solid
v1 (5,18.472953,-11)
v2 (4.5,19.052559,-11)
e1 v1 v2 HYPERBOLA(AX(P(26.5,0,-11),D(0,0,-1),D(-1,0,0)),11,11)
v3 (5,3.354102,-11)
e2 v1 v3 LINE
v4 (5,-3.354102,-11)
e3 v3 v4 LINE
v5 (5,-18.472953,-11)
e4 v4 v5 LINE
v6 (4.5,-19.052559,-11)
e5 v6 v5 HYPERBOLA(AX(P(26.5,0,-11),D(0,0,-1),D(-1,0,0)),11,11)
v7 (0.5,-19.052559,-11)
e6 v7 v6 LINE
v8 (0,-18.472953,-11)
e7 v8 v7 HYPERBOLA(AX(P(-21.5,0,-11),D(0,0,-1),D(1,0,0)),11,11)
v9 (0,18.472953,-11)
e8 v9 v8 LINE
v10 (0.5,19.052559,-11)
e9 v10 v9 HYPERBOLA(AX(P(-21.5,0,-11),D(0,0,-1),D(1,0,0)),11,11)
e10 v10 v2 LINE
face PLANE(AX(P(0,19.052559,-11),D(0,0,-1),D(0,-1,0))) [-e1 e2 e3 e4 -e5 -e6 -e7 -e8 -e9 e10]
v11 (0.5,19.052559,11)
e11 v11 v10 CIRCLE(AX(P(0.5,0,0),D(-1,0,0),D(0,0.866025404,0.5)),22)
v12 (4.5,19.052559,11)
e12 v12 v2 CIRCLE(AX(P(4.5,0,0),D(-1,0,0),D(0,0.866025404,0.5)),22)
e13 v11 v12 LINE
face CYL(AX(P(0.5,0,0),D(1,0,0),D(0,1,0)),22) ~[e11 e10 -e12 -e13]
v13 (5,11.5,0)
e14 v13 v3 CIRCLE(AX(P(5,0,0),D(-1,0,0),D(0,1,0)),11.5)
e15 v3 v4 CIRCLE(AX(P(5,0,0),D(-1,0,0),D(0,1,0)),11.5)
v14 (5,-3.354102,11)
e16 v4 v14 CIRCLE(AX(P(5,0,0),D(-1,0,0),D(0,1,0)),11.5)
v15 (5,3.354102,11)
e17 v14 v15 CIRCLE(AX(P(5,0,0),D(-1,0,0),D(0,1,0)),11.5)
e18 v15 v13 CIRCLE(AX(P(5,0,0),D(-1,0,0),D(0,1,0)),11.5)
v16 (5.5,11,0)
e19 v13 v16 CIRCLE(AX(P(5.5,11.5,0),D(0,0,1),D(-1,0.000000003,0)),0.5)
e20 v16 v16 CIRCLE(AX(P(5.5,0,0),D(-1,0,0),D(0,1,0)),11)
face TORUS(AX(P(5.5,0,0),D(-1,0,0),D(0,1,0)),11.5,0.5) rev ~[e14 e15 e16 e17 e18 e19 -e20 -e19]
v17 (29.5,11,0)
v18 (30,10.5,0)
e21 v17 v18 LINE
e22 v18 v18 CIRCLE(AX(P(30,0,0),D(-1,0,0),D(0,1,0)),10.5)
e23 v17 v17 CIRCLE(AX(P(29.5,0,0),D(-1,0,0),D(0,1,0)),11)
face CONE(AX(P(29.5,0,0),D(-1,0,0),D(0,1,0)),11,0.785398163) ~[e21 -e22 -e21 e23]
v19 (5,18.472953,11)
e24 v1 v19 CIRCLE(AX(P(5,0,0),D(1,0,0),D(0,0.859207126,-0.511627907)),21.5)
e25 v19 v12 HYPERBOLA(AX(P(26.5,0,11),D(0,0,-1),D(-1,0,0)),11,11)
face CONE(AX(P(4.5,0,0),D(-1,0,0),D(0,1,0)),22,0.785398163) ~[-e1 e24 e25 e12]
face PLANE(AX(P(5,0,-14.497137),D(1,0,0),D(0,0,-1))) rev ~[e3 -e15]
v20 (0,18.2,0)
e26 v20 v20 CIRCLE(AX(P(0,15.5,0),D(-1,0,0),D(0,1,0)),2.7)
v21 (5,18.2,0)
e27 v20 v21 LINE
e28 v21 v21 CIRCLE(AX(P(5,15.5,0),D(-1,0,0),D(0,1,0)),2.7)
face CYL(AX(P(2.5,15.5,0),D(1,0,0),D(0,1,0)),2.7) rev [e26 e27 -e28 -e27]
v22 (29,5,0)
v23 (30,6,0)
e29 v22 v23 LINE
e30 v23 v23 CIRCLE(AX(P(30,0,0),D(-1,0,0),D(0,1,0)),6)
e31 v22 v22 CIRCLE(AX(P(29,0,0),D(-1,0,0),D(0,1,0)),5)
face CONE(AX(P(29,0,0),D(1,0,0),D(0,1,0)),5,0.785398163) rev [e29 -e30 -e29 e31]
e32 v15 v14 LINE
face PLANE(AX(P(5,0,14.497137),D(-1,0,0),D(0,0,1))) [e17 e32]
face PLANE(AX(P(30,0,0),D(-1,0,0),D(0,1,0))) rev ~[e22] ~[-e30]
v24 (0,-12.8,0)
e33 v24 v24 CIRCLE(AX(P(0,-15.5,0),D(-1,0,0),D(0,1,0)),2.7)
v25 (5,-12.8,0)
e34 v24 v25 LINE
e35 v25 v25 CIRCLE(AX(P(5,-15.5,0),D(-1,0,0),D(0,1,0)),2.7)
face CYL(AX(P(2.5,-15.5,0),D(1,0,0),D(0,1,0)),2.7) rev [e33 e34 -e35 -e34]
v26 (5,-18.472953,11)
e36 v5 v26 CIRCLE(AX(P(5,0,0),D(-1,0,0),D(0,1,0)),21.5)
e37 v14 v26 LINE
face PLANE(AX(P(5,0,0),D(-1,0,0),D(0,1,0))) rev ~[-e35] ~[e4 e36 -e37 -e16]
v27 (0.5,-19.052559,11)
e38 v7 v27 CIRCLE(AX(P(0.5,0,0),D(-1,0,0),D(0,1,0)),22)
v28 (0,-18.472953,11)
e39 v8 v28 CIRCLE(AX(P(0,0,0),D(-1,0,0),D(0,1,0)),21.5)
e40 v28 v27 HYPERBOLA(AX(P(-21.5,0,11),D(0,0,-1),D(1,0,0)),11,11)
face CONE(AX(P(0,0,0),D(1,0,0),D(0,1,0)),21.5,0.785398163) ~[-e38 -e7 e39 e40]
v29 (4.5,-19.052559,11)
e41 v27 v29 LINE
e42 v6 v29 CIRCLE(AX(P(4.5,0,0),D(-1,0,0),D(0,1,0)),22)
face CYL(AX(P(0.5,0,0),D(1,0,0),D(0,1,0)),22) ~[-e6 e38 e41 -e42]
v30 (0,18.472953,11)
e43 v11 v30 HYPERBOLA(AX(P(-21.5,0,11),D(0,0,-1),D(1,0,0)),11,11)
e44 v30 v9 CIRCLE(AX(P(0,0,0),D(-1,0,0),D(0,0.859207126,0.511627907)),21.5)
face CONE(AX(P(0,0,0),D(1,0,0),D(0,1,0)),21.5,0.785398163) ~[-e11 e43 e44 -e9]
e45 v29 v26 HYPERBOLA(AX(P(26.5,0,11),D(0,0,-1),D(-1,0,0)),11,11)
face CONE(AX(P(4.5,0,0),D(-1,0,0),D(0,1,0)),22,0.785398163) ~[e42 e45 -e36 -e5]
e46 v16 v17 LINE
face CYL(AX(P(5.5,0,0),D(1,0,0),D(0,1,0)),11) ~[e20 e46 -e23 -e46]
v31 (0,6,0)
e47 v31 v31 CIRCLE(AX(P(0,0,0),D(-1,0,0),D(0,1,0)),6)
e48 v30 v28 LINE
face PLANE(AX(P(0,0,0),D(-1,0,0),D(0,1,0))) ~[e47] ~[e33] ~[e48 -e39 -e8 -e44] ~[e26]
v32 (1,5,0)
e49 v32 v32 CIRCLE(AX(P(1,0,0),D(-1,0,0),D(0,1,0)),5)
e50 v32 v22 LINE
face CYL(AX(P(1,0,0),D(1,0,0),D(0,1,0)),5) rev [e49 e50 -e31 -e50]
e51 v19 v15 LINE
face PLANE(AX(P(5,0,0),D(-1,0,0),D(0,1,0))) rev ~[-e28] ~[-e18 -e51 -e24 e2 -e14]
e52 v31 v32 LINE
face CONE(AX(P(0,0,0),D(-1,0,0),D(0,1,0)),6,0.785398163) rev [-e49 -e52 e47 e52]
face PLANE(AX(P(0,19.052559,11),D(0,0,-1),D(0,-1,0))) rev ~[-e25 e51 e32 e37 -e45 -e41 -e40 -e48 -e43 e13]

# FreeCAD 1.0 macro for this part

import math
import FreeCAD as App
import Part
import Sketcher

V = App.Vector
Q = App.Units.Quantity


def add_polygon(sketch, points):
    """Adds a closed chain of lines whose ends are joined by coincident constraints."""
    first, n = sketch.GeometryCount, len(points)
    for a, b in zip(points, points[1:] + points[:1]):
        sketch.addGeometry(Part.LineSegment(App.Vector(*a, 0), App.Vector(*b, 0)), False)
    for i in range(n):
        sketch.addConstraint(Sketcher.Constraint("Coincident", first + i, 2, first + (i + 1) % n, 1))

doc = App.newDocument("Part")
body = doc.addObject("PartDesign::Body", "Body")

sketch1 = body.newObject("Sketcher::SketchObject", "Sketch")
sketch1.AttachmentSupport = (doc.getObject("XY_Plane"), [""])
sketch1.MapMode = "FlatFace"
sketch1.addGeometry([
    Part.LineSegment(V(0, 21.5, 0), V(0, 0, 0)),
    Part.LineSegment(V(0, 0, 0), V(30, 0, 0)),
    Part.LineSegment(V(30, 0, 0), V(30, 10.5, 0)),
    Part.LineSegment(V(30, 10.5, 0), V(29.5, 11, 0)),
    Part.LineSegment(V(29.5, 11, 0), V(5.5, 11, 0)),
    Part.ArcOfCircle(Part.Circle(V(5.5, 11.5, 0), V(0, 0, 1), 0.5), math.radians(180), math.radians(270)),
    Part.LineSegment(V(5, 11.5, 0), V(5, 21.5, 0)),
    Part.LineSegment(V(5, 21.5, 0), V(4.5, 22, 0)),
    Part.LineSegment(V(4.5, 22, 0), V(0.5, 22, 0)),
    Part.LineSegment(V(0.5, 22, 0), V(0, 21.5, 0)),
], False)
sketch1.addConstraint([
    Sketcher.Constraint("Coincident", 0, 2, 1, 1),
    Sketcher.Constraint("Coincident", 1, 2, 2, 1),
    Sketcher.Constraint("Coincident", 2, 2, 3, 1),
    Sketcher.Constraint("Coincident", 3, 2, 4, 1),
    Sketcher.Constraint("Tangent", 4, 2, 5, 2),
    Sketcher.Constraint("Tangent", 5, 1, 6, 1),
    Sketcher.Constraint("Coincident", 6, 2, 7, 1),
    Sketcher.Constraint("Coincident", 7, 2, 8, 1),
    Sketcher.Constraint("Coincident", 8, 2, 9, 1),
    Sketcher.Constraint("Coincident", 9, 2, 0, 1),
    Sketcher.Constraint("Vertical", 0),
    Sketcher.Constraint("Horizontal", 1),
    Sketcher.Constraint("Vertical", 2),
    Sketcher.Constraint("Horizontal", 4),
    Sketcher.Constraint("Vertical", 6),
    Sketcher.Constraint("Horizontal", 8),
    Sketcher.Constraint("Coincident", 0, 2, -1, 1),
    Sketcher.Constraint("Parallel", 3, 7),
    Sketcher.Constraint("Perpendicular", 7, 9),
    Sketcher.Constraint("Horizontal", 6, 2, 9, 2),
    Sketcher.Constraint("Equal", 3, 7),
    Sketcher.Constraint("Equal", 7, 9),
    Sketcher.Constraint("Radius", 5, Q("0.5 mm")),
    Sketcher.Constraint("DistanceX", 1, 1, 1, 2, Q("30 mm")),
    Sketcher.Constraint("DistanceX", 4, 2, 4, 1, Q("24 mm")),
    Sketcher.Constraint("DistanceX", 8, 2, 8, 1, Q("4 mm")),
    Sketcher.Constraint("DistanceY", 6, 1, 6, 2, Q("10 mm")),
    Sketcher.Constraint("DistanceY", 0, 2, 0, 1, Q("21.5 mm")),
])
revolution = body.newObject("PartDesign::Revolution", "Revolution")
revolution.Profile = sketch1
revolution.ReferenceAxis = (sketch1, ["H_Axis"])
revolution.Angle = 360

sketch2 = body.newObject("Sketcher::SketchObject", "Sketch001")
sketch2.AttachmentSupport = (doc.getObject("XY_Plane"), [""])
sketch2.MapMode = "FlatFace"
add_polygon(sketch2, [(0, 6), (0, 0), (30, 0), (30, 6), (29, 5), (1, 5)])
sketch2.addConstraint([
    Sketcher.Constraint("Vertical", 0),
    Sketcher.Constraint("Horizontal", 1),
    Sketcher.Constraint("Vertical", 2),
    Sketcher.Constraint("Horizontal", 4),
    Sketcher.Constraint("Coincident", 0, 2, -1, 1),
    Sketcher.Constraint("Perpendicular", 3, 5),
    Sketcher.Constraint("Horizontal", 2, 2, 5, 2),
    Sketcher.Constraint("Equal", 3, 5),
    Sketcher.Constraint("DistanceX", 1, 1, 1, 2, Q("30 mm")),
    Sketcher.Constraint("DistanceX", 4, 2, 4, 1, Q("28 mm")),
    Sketcher.Constraint("DistanceY", 0, 2, 0, 1, Q("6 mm")),
])
groove = body.newObject("PartDesign::Groove", "Groove")
groove.Profile = sketch2
groove.ReferenceAxis = (sketch2, ["H_Axis"])
groove.Angle = 360

sketch3 = body.newObject("Sketcher::SketchObject", "Sketch002")
sketch3.AttachmentSupport = (doc.getObject("XY_Plane"), [""])
sketch3.MapMode = "FlatFace"
add_polygon(sketch3, [(0, 18.2), (0, 15.5), (5, 15.5), (5, 18.2)])
sketch3.addGeometry(Part.LineSegment(V(5, 15.5, 0), V(0, 15.5, 0)), True)
sketch3.addConstraint([
    Sketcher.Constraint("Vertical", 0),
    Sketcher.Constraint("Horizontal", 1),
    Sketcher.Constraint("Vertical", 2),
    Sketcher.Constraint("Horizontal", 3),
    Sketcher.Constraint("Horizontal", 4),
    Sketcher.Constraint("Coincident", 4, 1, 1, 2),
    Sketcher.Constraint("PointOnObject", 0, 2, -2),
    Sketcher.Constraint("PointOnObject", 4, 2, -2),
    Sketcher.Constraint("DistanceX", 1, 1, 1, 2, Q("5 mm")),
    Sketcher.Constraint("DistanceY", 0, 2, 0, 1, Q("2.7 mm")),
    Sketcher.Constraint("DistanceY", -1, 1, 0, 2, Q("15.5 mm")),
])
groove2 = body.newObject("PartDesign::Groove", "Groove001")
groove2.Profile = sketch3
groove2.ReferenceAxis = (sketch3, ["Axis0"])
groove2.Angle = 360

sketch4 = body.newObject("Sketcher::SketchObject", "Sketch003")
sketch4.AttachmentSupport = (doc.getObject("XY_Plane"), [""])
sketch4.MapMode = "FlatFace"
sketch4.AttachmentOffset = App.Placement(V(0, 0, 15.5), App.Rotation())
add_polygon(sketch4, [(0, 2.7), (0, 0), (5, 0), (5, 2.7)])
sketch4.addConstraint([
    Sketcher.Constraint("Vertical", 0),
    Sketcher.Constraint("Horizontal", 1),
    Sketcher.Constraint("Vertical", 2),
    Sketcher.Constraint("Horizontal", 3),
    Sketcher.Constraint("Coincident", 0, 2, -1, 1),
    Sketcher.Constraint("DistanceX", 1, 1, 1, 2, Q("5 mm")),
    Sketcher.Constraint("DistanceY", 0, 2, 0, 1, Q("2.7 mm")),
])
groove3 = body.newObject("PartDesign::Groove", "Groove002")
groove3.Profile = sketch4
groove3.ReferenceAxis = (sketch4, ["H_Axis"])
groove3.Angle = 360

sketch5 = body.newObject("Sketcher::SketchObject", "Sketch004")
sketch5.AttachmentSupport = (doc.getObject("XY_Plane"), [""])
sketch5.MapMode = "FlatFace"
add_polygon(sketch5, [(0, -12.8), (0, -15.5), (5, -15.5), (5, -12.8)])
sketch5.addGeometry(Part.LineSegment(V(5, -15.5, 0), V(0, -15.5, 0)), True)
sketch5.addConstraint([
    Sketcher.Constraint("Vertical", 0),
    Sketcher.Constraint("Horizontal", 1),
    Sketcher.Constraint("Vertical", 2),
    Sketcher.Constraint("Horizontal", 3),
    Sketcher.Constraint("Horizontal", 4),
    Sketcher.Constraint("Coincident", 4, 1, 1, 2),
    Sketcher.Constraint("PointOnObject", 0, 2, -2),
    Sketcher.Constraint("PointOnObject", 4, 2, -2),
    Sketcher.Constraint("DistanceX", 1, 1, 1, 2, Q("5 mm")),
    Sketcher.Constraint("DistanceY", 0, 2, 0, 1, Q("2.7 mm")),
    Sketcher.Constraint("DistanceY", 0, 2, -1, 1, Q("15.5 mm")),
])
groove4 = body.newObject("PartDesign::Groove", "Groove003")
groove4.Profile = sketch5
groove4.ReferenceAxis = (sketch5, ["Axis0"])
groove4.Angle = 360

sketch6 = body.newObject("Sketcher::SketchObject", "Sketch005")
sketch6.AttachmentSupport = (doc.getObject("XY_Plane"), [""])
sketch6.MapMode = "FlatFace"
sketch6.AttachmentOffset = App.Placement(V(0, 0, -15.5), App.Rotation())
add_polygon(sketch6, [(0, 2.7), (0, 0), (5, 0), (5, 2.7)])
sketch6.addConstraint([
    Sketcher.Constraint("Vertical", 0),
    Sketcher.Constraint("Horizontal", 1),
    Sketcher.Constraint("Vertical", 2),
    Sketcher.Constraint("Horizontal", 3),
    Sketcher.Constraint("Coincident", 0, 2, -1, 1),
    Sketcher.Constraint("DistanceX", 1, 1, 1, 2, Q("5 mm")),
    Sketcher.Constraint("DistanceY", 0, 2, 0, 1, Q("2.7 mm")),
])
groove5 = body.newObject("PartDesign::Groove", "Groove004")
groove5.Profile = sketch6
groove5.ReferenceAxis = (sketch6, ["H_Axis"])
groove5.Angle = 360

sketch7 = body.newObject("Sketcher::SketchObject", "Sketch006")
sketch7.AttachmentSupport = (doc.getObject("YZ_Plane"), [""])
sketch7.MapMode = "FlatFace"
sketch7.addGeometry([
    Part.LineSegment(V(19, 11, 0), V(-19, 11, 0)),
    Part.ArcOfCircle(Part.Circle(V(0, 0, 0), V(0, 0, 1), 22), math.radians(30), math.radians(150)),
    Part.LineSegment(V(-19, -11, 0), V(19, -11, 0)),
    Part.ArcOfCircle(Part.Circle(V(0, 0, 0), V(0, 0, 1), 22), math.radians(-150), math.radians(-30)),
], False)
sketch7.addConstraint([
    Sketcher.Constraint("Coincident", 0, 1, 1, 1),
    Sketcher.Constraint("Coincident", 1, 2, 0, 2),
    Sketcher.Constraint("Coincident", 2, 1, 3, 1),
    Sketcher.Constraint("Coincident", 3, 2, 2, 2),
    Sketcher.Constraint("Horizontal", 0),
    Sketcher.Constraint("Horizontal", 2),
    Sketcher.Constraint("Coincident", 1, 3, -1, 1),
    Sketcher.Constraint("Coincident", 3, 3, -1, 1),
    Sketcher.Constraint("Equal", 1, 3),
    Sketcher.Constraint("Vertical", 1, 2, 2, 1),
    Sketcher.Constraint("Radius", 1, Q("22 mm")),
    Sketcher.Constraint("DistanceY", -1, 1, 0, 1, Q("11 mm")),
])
pocket1 = body.newObject("PartDesign::Pocket", "Pocket")
pocket1.Profile = sketch7
pocket1.Length = 5
pocket1.Reversed = True

doc.recompute()
